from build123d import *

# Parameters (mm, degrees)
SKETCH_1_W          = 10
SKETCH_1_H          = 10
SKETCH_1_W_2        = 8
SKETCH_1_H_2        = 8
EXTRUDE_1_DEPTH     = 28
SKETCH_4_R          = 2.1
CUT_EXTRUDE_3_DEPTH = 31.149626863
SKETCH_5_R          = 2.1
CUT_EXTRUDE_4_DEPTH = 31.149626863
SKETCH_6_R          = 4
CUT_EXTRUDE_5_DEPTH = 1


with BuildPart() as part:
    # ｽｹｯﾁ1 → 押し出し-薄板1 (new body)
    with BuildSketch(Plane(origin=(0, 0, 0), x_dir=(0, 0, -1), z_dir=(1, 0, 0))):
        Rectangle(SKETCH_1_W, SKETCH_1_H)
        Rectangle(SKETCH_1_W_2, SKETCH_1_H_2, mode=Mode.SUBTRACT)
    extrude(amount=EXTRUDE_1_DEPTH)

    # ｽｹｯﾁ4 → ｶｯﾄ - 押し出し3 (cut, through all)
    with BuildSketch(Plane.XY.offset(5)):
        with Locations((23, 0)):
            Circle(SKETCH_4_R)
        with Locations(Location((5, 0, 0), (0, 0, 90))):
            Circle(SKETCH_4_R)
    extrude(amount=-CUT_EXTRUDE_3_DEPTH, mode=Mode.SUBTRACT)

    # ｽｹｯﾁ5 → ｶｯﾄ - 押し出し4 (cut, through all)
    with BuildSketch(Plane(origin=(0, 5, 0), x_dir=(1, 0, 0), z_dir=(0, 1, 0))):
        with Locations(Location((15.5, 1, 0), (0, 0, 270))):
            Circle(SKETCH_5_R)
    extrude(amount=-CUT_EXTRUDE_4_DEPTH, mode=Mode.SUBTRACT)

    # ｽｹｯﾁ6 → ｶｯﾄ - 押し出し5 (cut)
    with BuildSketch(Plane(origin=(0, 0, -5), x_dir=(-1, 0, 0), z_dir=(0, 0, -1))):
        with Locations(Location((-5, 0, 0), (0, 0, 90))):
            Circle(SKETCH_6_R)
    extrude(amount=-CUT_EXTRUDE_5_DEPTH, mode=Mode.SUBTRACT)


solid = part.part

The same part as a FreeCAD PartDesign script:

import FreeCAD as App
import Part
import Sketcher
Q = App.Units.Quantity


def add_polygon(sketch, points):
    """Adds a closed chain of lines whose ends are joined by coincident constraints."""
    first, n = sketch.GeometryCount, len(points)
    for a, b in zip(points, points[1:] + points[:1]):
        sketch.addGeometry(Part.LineSegment(App.Vector(*a, 0), App.Vector(*b, 0)), False)
    for i in range(n):
        sketch.addConstraint(Sketcher.Constraint("Coincident", first + i, 2, first + (i + 1) % n, 1))

doc = App.newDocument("Part")
body = doc.addObject("PartDesign::Body", "Body")

# Sketch on YZ plane
sketch1 = doc.addObject("Sketcher::SketchObject", "Sketch")
body.addObject(sketch1)
sketch1.AttachmentSupport = (doc.YZ_Plane, [""])
sketch1.MapMode = "FlatFace"
add_polygon(sketch1, [(5, 5), (-5, 5), (-5, -5), (5, -5)])  # lines 0-3
add_polygon(sketch1, [(-4, -4), (-4, 4), (4, 4), (4, -4)])  # lines 4-7
sketch1.addConstraint([
    Sketcher.Constraint("Horizontal", 0),
    Sketcher.Constraint("Vertical", 1),
    Sketcher.Constraint("Horizontal", 2),
    Sketcher.Constraint("Vertical", 3),
    Sketcher.Constraint("Vertical", 4),
    Sketcher.Constraint("Horizontal", 5),
    Sketcher.Constraint("Vertical", 6),
    Sketcher.Constraint("Horizontal", 7),
    Sketcher.Constraint("Symmetric", 0, 2, 2, 2, -1, 1),
    Sketcher.Constraint("Symmetric", 4, 2, 6, 2, -1, 1),
    Sketcher.Constraint("Equal", 2, 1),
    Sketcher.Constraint("Equal", 7, 4),
    Sketcher.Constraint("DistanceX", 0, 2, 0, 1, Q("10 mm")),
    Sketcher.Constraint("DistanceX", 5, 1, 5, 2, Q("8 mm")),
])
pad1 = doc.addObject("PartDesign::Pad", "Pad")
body.addObject(pad1)
pad1.Profile = sketch1
pad1.Length = 28

# Sketch on XY plane
sketch2 = doc.addObject("Sketcher::SketchObject", "Sketch001")
body.addObject(sketch2)
sketch2.AttachmentSupport = (doc.XY_Plane, [""])
sketch2.MapMode = "FlatFace"
sketch2.AttachmentOffset = App.Placement(App.Vector(0, 0, 5), App.Rotation())
sketch2.addGeometry([
    Part.Circle(App.Vector(23, 0, 0), App.Vector(0, 0, 1), 2.1),
    Part.Circle(App.Vector(5, 0, 0), App.Vector(0, 0, 1), 2.1),
], False)
sketch2.addConstraint([
    Sketcher.Constraint("Equal", 0, 1),
    Sketcher.Constraint("PointOnObject", 0, 3, -1),
    Sketcher.Constraint("PointOnObject", 1, 3, -1),
    Sketcher.Constraint("Diameter", 0, Q("4.2 mm")),
    Sketcher.Constraint("DistanceX", -1, 1, 0, 3, Q("23 mm")),
    Sketcher.Constraint("DistanceX", -1, 1, 1, 3, Q("5 mm")),
])
pocket1 = doc.addObject("PartDesign::Pocket", "Pocket")
body.addObject(pocket1)
pocket1.Profile = sketch2
pocket1.Type = "ThroughAll"

# Sketch on XZ plane
sketch3 = doc.addObject("Sketcher::SketchObject", "Sketch002")
body.addObject(sketch3)
sketch3.AttachmentSupport = (doc.XZ_Plane, [""])
sketch3.MapMode = "FlatFace"
sketch3.AttachmentOffset = App.Placement(App.Vector(0, 0, -5), App.Rotation())
sketch3.addGeometry(Part.Circle(App.Vector(15.5, -1, 0), App.Vector(0, 0, 1), 2.1), False)
sketch3.addConstraint([
    Sketcher.Constraint("Diameter", 0, Q("4.2 mm")),
    Sketcher.Constraint("DistanceY", 0, 3, -1, 1, Q("1 mm")),
    Sketcher.Constraint("DistanceX", -1, 1, 0, 3, Q("15.5 mm")),
])
pocket2 = doc.addObject("PartDesign::Pocket", "Pocket001")
body.addObject(pocket2)
pocket2.Profile = sketch3
pocket2.Type = "ThroughAll"
pocket2.Reversed = True

# Sketch on XY plane
sketch4 = doc.addObject("Sketcher::SketchObject", "Sketch003")
body.addObject(sketch4)
sketch4.AttachmentSupport = (doc.XY_Plane, [""])
sketch4.MapMode = "FlatFace"
sketch4.AttachmentOffset = App.Placement(App.Vector(0, 0, -5), App.Rotation())
sketch4.addGeometry(Part.Circle(App.Vector(5, 0, 0), App.Vector(0, 0, 1), 4), False)
sketch4.addConstraint([
    Sketcher.Constraint("PointOnObject", 0, 3, -1),
    Sketcher.Constraint("Diameter", 0, Q("8 mm")),
    Sketcher.Constraint("DistanceX", -1, 1, 0, 3, Q("5 mm")),
])
pocket3 = doc.addObject("PartDesign::Pocket", "Pocket002")
body.addObject(pocket3)
pocket3.Profile = sketch4
pocket3.Length = 1
pocket3.Reversed = True

doc.recompute()
